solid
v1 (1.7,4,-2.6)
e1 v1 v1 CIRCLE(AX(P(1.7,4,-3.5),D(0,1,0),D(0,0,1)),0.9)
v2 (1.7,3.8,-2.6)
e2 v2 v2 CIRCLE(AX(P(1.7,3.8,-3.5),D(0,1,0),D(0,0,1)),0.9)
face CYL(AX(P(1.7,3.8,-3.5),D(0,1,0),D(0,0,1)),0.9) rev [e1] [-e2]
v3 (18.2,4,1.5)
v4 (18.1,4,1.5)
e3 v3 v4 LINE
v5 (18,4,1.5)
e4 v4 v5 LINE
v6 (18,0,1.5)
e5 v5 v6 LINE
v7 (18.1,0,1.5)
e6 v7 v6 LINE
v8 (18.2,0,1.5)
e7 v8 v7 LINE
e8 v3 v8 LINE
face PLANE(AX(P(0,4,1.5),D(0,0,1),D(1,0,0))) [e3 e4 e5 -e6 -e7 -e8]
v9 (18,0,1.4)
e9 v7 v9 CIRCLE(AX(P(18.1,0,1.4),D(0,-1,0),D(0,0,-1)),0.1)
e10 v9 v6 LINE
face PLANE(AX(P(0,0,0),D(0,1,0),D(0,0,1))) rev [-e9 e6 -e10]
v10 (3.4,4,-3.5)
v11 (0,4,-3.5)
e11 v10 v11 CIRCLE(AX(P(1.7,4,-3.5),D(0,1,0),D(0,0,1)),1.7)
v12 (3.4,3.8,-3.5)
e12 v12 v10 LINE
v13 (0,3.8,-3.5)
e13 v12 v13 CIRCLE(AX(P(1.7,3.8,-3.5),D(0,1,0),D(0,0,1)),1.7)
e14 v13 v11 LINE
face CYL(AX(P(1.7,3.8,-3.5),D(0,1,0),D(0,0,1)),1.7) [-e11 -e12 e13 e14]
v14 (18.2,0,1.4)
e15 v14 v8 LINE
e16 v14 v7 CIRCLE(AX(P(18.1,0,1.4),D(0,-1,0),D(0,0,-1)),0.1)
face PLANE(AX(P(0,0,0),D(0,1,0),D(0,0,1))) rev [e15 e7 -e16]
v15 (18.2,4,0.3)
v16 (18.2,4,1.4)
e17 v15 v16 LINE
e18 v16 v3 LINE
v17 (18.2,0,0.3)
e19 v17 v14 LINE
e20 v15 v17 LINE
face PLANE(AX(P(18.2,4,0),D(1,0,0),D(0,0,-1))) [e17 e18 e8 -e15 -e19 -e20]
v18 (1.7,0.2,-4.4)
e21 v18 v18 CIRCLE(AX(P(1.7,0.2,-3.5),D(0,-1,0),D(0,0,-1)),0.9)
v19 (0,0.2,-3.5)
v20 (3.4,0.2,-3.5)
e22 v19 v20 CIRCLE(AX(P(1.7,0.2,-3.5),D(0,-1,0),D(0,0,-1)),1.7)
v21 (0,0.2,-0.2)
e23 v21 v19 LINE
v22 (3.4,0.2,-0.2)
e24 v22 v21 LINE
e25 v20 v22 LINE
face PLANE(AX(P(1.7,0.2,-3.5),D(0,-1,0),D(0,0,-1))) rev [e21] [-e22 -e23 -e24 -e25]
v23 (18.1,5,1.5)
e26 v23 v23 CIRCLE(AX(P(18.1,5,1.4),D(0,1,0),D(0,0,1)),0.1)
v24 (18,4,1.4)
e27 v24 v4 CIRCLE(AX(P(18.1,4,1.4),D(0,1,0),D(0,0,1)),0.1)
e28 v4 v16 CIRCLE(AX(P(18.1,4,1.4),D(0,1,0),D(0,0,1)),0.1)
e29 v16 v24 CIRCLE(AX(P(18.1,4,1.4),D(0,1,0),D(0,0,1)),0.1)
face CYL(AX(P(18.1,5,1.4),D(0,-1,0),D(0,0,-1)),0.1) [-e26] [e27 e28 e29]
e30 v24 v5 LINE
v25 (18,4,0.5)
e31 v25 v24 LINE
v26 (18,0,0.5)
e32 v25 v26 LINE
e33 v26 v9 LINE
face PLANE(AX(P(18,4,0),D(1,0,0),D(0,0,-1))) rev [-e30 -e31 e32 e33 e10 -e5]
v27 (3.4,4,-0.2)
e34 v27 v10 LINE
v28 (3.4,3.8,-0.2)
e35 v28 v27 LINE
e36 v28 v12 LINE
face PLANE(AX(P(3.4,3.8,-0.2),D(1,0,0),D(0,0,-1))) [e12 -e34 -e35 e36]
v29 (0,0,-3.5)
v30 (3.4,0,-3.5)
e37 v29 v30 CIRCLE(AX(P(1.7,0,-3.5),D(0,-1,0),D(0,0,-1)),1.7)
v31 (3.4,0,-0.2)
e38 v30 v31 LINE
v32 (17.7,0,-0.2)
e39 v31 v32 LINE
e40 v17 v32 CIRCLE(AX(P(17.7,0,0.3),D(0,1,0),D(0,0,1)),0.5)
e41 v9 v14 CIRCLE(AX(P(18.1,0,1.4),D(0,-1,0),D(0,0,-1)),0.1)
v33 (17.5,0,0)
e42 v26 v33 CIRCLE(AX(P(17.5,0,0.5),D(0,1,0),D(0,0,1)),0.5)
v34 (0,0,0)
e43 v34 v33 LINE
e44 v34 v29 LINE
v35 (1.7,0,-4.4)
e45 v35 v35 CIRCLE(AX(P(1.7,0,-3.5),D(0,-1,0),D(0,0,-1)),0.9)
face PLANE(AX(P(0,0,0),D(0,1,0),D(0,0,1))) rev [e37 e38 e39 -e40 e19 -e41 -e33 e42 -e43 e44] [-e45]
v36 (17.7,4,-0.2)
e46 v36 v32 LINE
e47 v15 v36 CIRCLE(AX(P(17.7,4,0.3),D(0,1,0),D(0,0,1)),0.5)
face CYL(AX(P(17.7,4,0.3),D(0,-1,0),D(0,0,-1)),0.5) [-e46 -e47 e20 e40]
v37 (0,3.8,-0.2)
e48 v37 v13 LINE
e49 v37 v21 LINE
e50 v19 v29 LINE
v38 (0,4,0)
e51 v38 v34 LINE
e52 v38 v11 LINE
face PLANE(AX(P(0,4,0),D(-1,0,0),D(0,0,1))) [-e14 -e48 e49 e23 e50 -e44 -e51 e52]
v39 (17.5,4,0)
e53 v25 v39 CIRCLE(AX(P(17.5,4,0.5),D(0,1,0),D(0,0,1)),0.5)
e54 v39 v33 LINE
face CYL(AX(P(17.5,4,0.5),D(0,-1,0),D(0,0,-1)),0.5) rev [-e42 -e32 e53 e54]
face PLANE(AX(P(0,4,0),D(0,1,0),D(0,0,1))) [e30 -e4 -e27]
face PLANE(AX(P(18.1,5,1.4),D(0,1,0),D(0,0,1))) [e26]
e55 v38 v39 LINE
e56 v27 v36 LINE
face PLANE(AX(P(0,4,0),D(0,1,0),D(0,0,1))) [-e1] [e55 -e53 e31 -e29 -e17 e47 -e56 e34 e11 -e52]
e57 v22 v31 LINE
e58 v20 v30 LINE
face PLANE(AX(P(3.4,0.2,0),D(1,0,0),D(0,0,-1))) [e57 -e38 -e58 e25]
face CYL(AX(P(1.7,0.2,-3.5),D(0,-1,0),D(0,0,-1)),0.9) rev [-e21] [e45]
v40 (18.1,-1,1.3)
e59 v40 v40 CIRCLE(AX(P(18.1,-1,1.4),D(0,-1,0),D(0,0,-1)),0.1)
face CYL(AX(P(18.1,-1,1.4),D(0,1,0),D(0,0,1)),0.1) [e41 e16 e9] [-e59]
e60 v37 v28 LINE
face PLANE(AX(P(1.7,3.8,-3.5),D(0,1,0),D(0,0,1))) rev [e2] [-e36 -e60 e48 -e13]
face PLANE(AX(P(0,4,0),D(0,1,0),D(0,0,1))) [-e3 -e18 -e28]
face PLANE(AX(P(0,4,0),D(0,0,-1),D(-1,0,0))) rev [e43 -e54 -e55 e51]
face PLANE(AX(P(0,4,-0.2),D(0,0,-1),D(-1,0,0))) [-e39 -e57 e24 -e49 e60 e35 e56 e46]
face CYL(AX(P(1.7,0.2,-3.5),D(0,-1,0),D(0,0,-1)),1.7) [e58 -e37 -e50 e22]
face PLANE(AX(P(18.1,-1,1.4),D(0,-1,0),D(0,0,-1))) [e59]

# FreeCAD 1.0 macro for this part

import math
import FreeCAD as App
import Part
import Sketcher
Q = App.Units.Quantity

doc = App.newDocument("Part")
body = doc.addObject("PartDesign::Body", "Body")

# Sketch on XZ plane
sketch1 = doc.addObject("Sketcher::SketchObject", "Sketch")
body.addObject(sketch1)
sketch1.AttachmentSupport = (doc.XZ_Plane, [""])
sketch1.MapMode = "FlatFace"
sketch1.addGeometry(Part.LineSegment(App.Vector(18.2, 1.5, 0), App.Vector(18.2, 0.3, 0)), False)
sketch1.addGeometry(Part.ArcOfCircle(Part.Circle(App.Vector(17.7, 0.3, 0), App.Vector(0, 0, 1), 0.5), math.radians(-90), math.radians(0)), False)
sketch1.addGeometry(Part.LineSegment(App.Vector(17.7, -0.2, 0), App.Vector(0, -0.2, 0)), False)
sketch1.addGeometry(Part.LineSegment(App.Vector(0, -0.2, 0), App.Vector(0, 0, 0)), False)
sketch1.addGeometry(Part.LineSegment(App.Vector(0, 0, 0), App.Vector(17.5, 0, 0)), False)
sketch1.addGeometry(Part.ArcOfCircle(Part.Circle(App.Vector(17.5, 0.5, 0), App.Vector(0, 0, 1), 0.5), math.radians(-90), math.radians(0)), False)
sketch1.addGeometry(Part.LineSegment(App.Vector(18, 0.5, 0), App.Vector(18, 1.5, 0)), False)
sketch1.addGeometry(Part.LineSegment(App.Vector(18, 1.5, 0), App.Vector(18.2, 1.5, 0)), False)
sketch1.addConstraint(Sketcher.Constraint("Tangent", 0, 2, 1, 2))
sketch1.addConstraint(Sketcher.Constraint("Tangent", 1, 1, 2, 1))
sketch1.addConstraint(Sketcher.Constraint("Coincident", 2, 2, 3, 1))
sketch1.addConstraint(Sketcher.Constraint("Coincident", 3, 2, 4, 1))
sketch1.addConstraint(Sketcher.Constraint("Tangent", 4, 2, 5, 1))
sketch1.addConstraint(Sketcher.Constraint("Tangent", 5, 2, 6, 1))
sketch1.addConstraint(Sketcher.Constraint("Coincident", 6, 2, 7, 1))
sketch1.addConstraint(Sketcher.Constraint("Coincident", 7, 2, 0, 1))
sketch1.addConstraint(Sketcher.Constraint("Vertical", 0))
sketch1.addConstraint(Sketcher.Constraint("Horizontal", 2))
sketch1.addConstraint(Sketcher.Constraint("Vertical", 3))
sketch1.addConstraint(Sketcher.Constraint("Horizontal", 4))
sketch1.addConstraint(Sketcher.Constraint("Vertical", 6))
sketch1.addConstraint(Sketcher.Constraint("Horizontal", 7))
sketch1.addConstraint(Sketcher.Constraint("Coincident", 3, 2, -1, 1))
sketch1.addConstraint(Sketcher.Constraint("Equal", 1, 5))
sketch1.addConstraint(Sketcher.Constraint("Equal", 7, 3))
sketch1.addConstraint(Sketcher.Constraint("Radius", 1, Q("0.5 mm")))
sketch1.addConstraint(Sketcher.Constraint("DistanceY", 6, 1, 6, 2, Q("1 mm")))
sketch1.addConstraint(Sketcher.Constraint("DistanceX", 2, 2, 2, 1, Q("17.7 mm")))
sketch1.addConstraint(Sketcher.Constraint("DistanceX", 4, 1, 4, 2, Q("17.5 mm")))
pad1 = doc.addObject("PartDesign::Pad", "Pad")
body.addObject(pad1)
pad1.Profile = sketch1
pad1.Length = 4
pad1.Reversed = True

# Sketch on XZ plane
sketch2 = doc.addObject("Sketcher::SketchObject", "Sketch001")
body.addObject(sketch2)
sketch2.AttachmentSupport = (doc.XZ_Plane, [""])
sketch2.MapMode = "FlatFace"
sketch2.AttachmentOffset = App.Placement(App.Vector(0, 0, -4), App.Rotation())
sketch2.addGeometry(Part.LineSegment(App.Vector(0, -0.2, 0), App.Vector(3.4, -0.2, 0)), False)
sketch2.addGeometry(Part.LineSegment(App.Vector(3.4, -0.2, 0), App.Vector(3.4, -3.5, 0)), False)
sketch2.addGeometry(Part.ArcOfCircle(Part.Circle(App.Vector(1.7, -3.5, 0), App.Vector(0, 0, 1), 1.7), math.radians(180), math.radians(360)), False)
sketch2.addGeometry(Part.LineSegment(App.Vector(0, -3.5, 0), App.Vector(0, -0.2, 0)), False)
sketch2.addGeometry(Part.Circle(App.Vector(1.7, -3.5, 0), App.Vector(0, 0, 1), 0.9), False)
sketch2.addConstraint(Sketcher.Constraint("Coincident", 0, 2, 1, 1))
sketch2.addConstraint(Sketcher.Constraint("Tangent", 1, 2, 2, 2))
sketch2.addConstraint(Sketcher.Constraint("Tangent", 2, 1, 3, 1))
sketch2.addConstraint(Sketcher.Constraint("Coincident", 3, 2, 0, 1))
sketch2.addConstraint(Sketcher.Constraint("Horizontal", 0))
sketch2.addConstraint(Sketcher.Constraint("Vertical", 1))
sketch2.addConstraint(Sketcher.Constraint("Vertical", 3))
sketch2.addConstraint(Sketcher.Constraint("Coincident", 4, 3, 2, 3))
sketch2.addConstraint(Sketcher.Constraint("PointOnObject", 2, 1, -2))
sketch2.addConstraint(Sketcher.Constraint("Diameter", 4, Q("1.8 mm")))
sketch2.addConstraint(Sketcher.Constraint("Radius", 2, Q("1.7 mm")))
sketch2.addConstraint(Sketcher.Constraint("DistanceY", 1, 2, 1, 1, Q("3.3 mm")))
sketch2.addConstraint(Sketcher.Constraint("DistanceY", 2, 3, -1, 1, Q("3.5 mm")))
pad2 = doc.addObject("PartDesign::Pad", "Pad001")
body.addObject(pad2)
pad2.Profile = sketch2
pad2.Length = 0.2

# Sketch on XZ plane
sketch3 = doc.addObject("Sketcher::SketchObject", "Sketch002")
body.addObject(sketch3)
sketch3.AttachmentSupport = (doc.XZ_Plane, [""])
sketch3.MapMode = "FlatFace"
sketch3.AttachmentOffset = App.Placement(App.Vector(0, 0, -0.2), App.Rotation())
sketch3.addGeometry(Part.LineSegment(App.Vector(3.4, 0, 0), App.Vector(0, 0, 0)), False)
sketch3.addGeometry(Part.LineSegment(App.Vector(0, 0, 0), App.Vector(0, -3.5, 0)), False)
sketch3.addGeometry(Part.ArcOfCircle(Part.Circle(App.Vector(1.7, -3.5, 0), App.Vector(0, 0, 1), 1.7), math.radians(180), math.radians(360)), False)
sketch3.addGeometry(Part.LineSegment(App.Vector(3.4, -3.5, 0), App.Vector(3.4, 0, 0)), False)
sketch3.addGeometry(Part.Circle(App.Vector(1.7, -3.5, 0), App.Vector(0, 0, 1), 0.9), False)
sketch3.addConstraint(Sketcher.Constraint("Coincident", 0, 2, 1, 1))
sketch3.addConstraint(Sketcher.Constraint("Tangent", 1, 2, 2, 1))
sketch3.addConstraint(Sketcher.Constraint("Tangent", 2, 2, 3, 1))
sketch3.addConstraint(Sketcher.Constraint("Coincident", 3, 2, 0, 1))
sketch3.addConstraint(Sketcher.Constraint("Horizontal", 0))
sketch3.addConstraint(Sketcher.Constraint("Vertical", 1))
sketch3.addConstraint(Sketcher.Constraint("Vertical", 3))
sketch3.addConstraint(Sketcher.Constraint("Coincident", 0, 2, -1, 1))
sketch3.addConstraint(Sketcher.Constraint("Coincident", 4, 3, 2, 3))
sketch3.addConstraint(Sketcher.Constraint("Diameter", 4, Q("1.8 mm")))
sketch3.addConstraint(Sketcher.Constraint("Radius", 2, Q("1.7 mm")))
sketch3.addConstraint(Sketcher.Constraint("DistanceY", 1, 2, 1, 1, Q("3.5 mm")))
pad3 = doc.addObject("PartDesign::Pad", "Pad002")
body.addObject(pad3)
pad3.Profile = sketch3
pad3.Length = 0.2

# Sketch on XZ plane
sketch4 = doc.addObject("Sketcher::SketchObject", "Sketch003")
body.addObject(sketch4)
sketch4.AttachmentSupport = (doc.XZ_Plane, [""])
sketch4.MapMode = "FlatFace"
sketch4.AttachmentOffset = App.Placement(App.Vector(0, 0, -4), App.Rotation())
sketch4.addGeometry(Part.Circle(App.Vector(18.1, 1.4, 0), App.Vector(0, 0, 1), 0.1), False)
sketch4.addConstraint(Sketcher.Constraint("Diameter", 0, Q("0.2 mm")))
sketch4.addConstraint(Sketcher.Constraint("DistanceX", -1, 1, 0, 3, Q("18.1 mm")))
sketch4.addConstraint(Sketcher.Constraint("DistanceY", -1, 1, 0, 3, Q("1.4 mm")))
pad4 = doc.addObject("PartDesign::Pad", "Pad003")
body.addObject(pad4)
pad4.Profile = sketch4
pad4.Length = 1
pad4.Reversed = True

# Sketch on XZ plane
sketch5 = doc.addObject("Sketcher::SketchObject", "Sketch004")
body.addObject(sketch5)
sketch5.AttachmentSupport = (doc.XZ_Plane, [""])
sketch5.MapMode = "FlatFace"
sketch5.AttachmentOffset = App.Placement(App.Vector(0, 0, 1), App.Rotation())
sketch5.addGeometry(Part.Circle(App.Vector(18.1, 1.4, 0), App.Vector(0, 0, 1), 0.1), False)
sketch5.addConstraint(Sketcher.Constraint("Diameter", 0, Q("0.2 mm")))
sketch5.addConstraint(Sketcher.Constraint("DistanceX", -1, 1, 0, 3, Q("18.1 mm")))
sketch5.addConstraint(Sketcher.Constraint("DistanceY", -1, 1, 0, 3, Q("1.4 mm")))
pad5 = doc.addObject("PartDesign::Pad", "Pad004")
body.addObject(pad5)
pad5.Profile = sketch5
pad5.Length = 1
pad5.Reversed = True

doc.recompute()
